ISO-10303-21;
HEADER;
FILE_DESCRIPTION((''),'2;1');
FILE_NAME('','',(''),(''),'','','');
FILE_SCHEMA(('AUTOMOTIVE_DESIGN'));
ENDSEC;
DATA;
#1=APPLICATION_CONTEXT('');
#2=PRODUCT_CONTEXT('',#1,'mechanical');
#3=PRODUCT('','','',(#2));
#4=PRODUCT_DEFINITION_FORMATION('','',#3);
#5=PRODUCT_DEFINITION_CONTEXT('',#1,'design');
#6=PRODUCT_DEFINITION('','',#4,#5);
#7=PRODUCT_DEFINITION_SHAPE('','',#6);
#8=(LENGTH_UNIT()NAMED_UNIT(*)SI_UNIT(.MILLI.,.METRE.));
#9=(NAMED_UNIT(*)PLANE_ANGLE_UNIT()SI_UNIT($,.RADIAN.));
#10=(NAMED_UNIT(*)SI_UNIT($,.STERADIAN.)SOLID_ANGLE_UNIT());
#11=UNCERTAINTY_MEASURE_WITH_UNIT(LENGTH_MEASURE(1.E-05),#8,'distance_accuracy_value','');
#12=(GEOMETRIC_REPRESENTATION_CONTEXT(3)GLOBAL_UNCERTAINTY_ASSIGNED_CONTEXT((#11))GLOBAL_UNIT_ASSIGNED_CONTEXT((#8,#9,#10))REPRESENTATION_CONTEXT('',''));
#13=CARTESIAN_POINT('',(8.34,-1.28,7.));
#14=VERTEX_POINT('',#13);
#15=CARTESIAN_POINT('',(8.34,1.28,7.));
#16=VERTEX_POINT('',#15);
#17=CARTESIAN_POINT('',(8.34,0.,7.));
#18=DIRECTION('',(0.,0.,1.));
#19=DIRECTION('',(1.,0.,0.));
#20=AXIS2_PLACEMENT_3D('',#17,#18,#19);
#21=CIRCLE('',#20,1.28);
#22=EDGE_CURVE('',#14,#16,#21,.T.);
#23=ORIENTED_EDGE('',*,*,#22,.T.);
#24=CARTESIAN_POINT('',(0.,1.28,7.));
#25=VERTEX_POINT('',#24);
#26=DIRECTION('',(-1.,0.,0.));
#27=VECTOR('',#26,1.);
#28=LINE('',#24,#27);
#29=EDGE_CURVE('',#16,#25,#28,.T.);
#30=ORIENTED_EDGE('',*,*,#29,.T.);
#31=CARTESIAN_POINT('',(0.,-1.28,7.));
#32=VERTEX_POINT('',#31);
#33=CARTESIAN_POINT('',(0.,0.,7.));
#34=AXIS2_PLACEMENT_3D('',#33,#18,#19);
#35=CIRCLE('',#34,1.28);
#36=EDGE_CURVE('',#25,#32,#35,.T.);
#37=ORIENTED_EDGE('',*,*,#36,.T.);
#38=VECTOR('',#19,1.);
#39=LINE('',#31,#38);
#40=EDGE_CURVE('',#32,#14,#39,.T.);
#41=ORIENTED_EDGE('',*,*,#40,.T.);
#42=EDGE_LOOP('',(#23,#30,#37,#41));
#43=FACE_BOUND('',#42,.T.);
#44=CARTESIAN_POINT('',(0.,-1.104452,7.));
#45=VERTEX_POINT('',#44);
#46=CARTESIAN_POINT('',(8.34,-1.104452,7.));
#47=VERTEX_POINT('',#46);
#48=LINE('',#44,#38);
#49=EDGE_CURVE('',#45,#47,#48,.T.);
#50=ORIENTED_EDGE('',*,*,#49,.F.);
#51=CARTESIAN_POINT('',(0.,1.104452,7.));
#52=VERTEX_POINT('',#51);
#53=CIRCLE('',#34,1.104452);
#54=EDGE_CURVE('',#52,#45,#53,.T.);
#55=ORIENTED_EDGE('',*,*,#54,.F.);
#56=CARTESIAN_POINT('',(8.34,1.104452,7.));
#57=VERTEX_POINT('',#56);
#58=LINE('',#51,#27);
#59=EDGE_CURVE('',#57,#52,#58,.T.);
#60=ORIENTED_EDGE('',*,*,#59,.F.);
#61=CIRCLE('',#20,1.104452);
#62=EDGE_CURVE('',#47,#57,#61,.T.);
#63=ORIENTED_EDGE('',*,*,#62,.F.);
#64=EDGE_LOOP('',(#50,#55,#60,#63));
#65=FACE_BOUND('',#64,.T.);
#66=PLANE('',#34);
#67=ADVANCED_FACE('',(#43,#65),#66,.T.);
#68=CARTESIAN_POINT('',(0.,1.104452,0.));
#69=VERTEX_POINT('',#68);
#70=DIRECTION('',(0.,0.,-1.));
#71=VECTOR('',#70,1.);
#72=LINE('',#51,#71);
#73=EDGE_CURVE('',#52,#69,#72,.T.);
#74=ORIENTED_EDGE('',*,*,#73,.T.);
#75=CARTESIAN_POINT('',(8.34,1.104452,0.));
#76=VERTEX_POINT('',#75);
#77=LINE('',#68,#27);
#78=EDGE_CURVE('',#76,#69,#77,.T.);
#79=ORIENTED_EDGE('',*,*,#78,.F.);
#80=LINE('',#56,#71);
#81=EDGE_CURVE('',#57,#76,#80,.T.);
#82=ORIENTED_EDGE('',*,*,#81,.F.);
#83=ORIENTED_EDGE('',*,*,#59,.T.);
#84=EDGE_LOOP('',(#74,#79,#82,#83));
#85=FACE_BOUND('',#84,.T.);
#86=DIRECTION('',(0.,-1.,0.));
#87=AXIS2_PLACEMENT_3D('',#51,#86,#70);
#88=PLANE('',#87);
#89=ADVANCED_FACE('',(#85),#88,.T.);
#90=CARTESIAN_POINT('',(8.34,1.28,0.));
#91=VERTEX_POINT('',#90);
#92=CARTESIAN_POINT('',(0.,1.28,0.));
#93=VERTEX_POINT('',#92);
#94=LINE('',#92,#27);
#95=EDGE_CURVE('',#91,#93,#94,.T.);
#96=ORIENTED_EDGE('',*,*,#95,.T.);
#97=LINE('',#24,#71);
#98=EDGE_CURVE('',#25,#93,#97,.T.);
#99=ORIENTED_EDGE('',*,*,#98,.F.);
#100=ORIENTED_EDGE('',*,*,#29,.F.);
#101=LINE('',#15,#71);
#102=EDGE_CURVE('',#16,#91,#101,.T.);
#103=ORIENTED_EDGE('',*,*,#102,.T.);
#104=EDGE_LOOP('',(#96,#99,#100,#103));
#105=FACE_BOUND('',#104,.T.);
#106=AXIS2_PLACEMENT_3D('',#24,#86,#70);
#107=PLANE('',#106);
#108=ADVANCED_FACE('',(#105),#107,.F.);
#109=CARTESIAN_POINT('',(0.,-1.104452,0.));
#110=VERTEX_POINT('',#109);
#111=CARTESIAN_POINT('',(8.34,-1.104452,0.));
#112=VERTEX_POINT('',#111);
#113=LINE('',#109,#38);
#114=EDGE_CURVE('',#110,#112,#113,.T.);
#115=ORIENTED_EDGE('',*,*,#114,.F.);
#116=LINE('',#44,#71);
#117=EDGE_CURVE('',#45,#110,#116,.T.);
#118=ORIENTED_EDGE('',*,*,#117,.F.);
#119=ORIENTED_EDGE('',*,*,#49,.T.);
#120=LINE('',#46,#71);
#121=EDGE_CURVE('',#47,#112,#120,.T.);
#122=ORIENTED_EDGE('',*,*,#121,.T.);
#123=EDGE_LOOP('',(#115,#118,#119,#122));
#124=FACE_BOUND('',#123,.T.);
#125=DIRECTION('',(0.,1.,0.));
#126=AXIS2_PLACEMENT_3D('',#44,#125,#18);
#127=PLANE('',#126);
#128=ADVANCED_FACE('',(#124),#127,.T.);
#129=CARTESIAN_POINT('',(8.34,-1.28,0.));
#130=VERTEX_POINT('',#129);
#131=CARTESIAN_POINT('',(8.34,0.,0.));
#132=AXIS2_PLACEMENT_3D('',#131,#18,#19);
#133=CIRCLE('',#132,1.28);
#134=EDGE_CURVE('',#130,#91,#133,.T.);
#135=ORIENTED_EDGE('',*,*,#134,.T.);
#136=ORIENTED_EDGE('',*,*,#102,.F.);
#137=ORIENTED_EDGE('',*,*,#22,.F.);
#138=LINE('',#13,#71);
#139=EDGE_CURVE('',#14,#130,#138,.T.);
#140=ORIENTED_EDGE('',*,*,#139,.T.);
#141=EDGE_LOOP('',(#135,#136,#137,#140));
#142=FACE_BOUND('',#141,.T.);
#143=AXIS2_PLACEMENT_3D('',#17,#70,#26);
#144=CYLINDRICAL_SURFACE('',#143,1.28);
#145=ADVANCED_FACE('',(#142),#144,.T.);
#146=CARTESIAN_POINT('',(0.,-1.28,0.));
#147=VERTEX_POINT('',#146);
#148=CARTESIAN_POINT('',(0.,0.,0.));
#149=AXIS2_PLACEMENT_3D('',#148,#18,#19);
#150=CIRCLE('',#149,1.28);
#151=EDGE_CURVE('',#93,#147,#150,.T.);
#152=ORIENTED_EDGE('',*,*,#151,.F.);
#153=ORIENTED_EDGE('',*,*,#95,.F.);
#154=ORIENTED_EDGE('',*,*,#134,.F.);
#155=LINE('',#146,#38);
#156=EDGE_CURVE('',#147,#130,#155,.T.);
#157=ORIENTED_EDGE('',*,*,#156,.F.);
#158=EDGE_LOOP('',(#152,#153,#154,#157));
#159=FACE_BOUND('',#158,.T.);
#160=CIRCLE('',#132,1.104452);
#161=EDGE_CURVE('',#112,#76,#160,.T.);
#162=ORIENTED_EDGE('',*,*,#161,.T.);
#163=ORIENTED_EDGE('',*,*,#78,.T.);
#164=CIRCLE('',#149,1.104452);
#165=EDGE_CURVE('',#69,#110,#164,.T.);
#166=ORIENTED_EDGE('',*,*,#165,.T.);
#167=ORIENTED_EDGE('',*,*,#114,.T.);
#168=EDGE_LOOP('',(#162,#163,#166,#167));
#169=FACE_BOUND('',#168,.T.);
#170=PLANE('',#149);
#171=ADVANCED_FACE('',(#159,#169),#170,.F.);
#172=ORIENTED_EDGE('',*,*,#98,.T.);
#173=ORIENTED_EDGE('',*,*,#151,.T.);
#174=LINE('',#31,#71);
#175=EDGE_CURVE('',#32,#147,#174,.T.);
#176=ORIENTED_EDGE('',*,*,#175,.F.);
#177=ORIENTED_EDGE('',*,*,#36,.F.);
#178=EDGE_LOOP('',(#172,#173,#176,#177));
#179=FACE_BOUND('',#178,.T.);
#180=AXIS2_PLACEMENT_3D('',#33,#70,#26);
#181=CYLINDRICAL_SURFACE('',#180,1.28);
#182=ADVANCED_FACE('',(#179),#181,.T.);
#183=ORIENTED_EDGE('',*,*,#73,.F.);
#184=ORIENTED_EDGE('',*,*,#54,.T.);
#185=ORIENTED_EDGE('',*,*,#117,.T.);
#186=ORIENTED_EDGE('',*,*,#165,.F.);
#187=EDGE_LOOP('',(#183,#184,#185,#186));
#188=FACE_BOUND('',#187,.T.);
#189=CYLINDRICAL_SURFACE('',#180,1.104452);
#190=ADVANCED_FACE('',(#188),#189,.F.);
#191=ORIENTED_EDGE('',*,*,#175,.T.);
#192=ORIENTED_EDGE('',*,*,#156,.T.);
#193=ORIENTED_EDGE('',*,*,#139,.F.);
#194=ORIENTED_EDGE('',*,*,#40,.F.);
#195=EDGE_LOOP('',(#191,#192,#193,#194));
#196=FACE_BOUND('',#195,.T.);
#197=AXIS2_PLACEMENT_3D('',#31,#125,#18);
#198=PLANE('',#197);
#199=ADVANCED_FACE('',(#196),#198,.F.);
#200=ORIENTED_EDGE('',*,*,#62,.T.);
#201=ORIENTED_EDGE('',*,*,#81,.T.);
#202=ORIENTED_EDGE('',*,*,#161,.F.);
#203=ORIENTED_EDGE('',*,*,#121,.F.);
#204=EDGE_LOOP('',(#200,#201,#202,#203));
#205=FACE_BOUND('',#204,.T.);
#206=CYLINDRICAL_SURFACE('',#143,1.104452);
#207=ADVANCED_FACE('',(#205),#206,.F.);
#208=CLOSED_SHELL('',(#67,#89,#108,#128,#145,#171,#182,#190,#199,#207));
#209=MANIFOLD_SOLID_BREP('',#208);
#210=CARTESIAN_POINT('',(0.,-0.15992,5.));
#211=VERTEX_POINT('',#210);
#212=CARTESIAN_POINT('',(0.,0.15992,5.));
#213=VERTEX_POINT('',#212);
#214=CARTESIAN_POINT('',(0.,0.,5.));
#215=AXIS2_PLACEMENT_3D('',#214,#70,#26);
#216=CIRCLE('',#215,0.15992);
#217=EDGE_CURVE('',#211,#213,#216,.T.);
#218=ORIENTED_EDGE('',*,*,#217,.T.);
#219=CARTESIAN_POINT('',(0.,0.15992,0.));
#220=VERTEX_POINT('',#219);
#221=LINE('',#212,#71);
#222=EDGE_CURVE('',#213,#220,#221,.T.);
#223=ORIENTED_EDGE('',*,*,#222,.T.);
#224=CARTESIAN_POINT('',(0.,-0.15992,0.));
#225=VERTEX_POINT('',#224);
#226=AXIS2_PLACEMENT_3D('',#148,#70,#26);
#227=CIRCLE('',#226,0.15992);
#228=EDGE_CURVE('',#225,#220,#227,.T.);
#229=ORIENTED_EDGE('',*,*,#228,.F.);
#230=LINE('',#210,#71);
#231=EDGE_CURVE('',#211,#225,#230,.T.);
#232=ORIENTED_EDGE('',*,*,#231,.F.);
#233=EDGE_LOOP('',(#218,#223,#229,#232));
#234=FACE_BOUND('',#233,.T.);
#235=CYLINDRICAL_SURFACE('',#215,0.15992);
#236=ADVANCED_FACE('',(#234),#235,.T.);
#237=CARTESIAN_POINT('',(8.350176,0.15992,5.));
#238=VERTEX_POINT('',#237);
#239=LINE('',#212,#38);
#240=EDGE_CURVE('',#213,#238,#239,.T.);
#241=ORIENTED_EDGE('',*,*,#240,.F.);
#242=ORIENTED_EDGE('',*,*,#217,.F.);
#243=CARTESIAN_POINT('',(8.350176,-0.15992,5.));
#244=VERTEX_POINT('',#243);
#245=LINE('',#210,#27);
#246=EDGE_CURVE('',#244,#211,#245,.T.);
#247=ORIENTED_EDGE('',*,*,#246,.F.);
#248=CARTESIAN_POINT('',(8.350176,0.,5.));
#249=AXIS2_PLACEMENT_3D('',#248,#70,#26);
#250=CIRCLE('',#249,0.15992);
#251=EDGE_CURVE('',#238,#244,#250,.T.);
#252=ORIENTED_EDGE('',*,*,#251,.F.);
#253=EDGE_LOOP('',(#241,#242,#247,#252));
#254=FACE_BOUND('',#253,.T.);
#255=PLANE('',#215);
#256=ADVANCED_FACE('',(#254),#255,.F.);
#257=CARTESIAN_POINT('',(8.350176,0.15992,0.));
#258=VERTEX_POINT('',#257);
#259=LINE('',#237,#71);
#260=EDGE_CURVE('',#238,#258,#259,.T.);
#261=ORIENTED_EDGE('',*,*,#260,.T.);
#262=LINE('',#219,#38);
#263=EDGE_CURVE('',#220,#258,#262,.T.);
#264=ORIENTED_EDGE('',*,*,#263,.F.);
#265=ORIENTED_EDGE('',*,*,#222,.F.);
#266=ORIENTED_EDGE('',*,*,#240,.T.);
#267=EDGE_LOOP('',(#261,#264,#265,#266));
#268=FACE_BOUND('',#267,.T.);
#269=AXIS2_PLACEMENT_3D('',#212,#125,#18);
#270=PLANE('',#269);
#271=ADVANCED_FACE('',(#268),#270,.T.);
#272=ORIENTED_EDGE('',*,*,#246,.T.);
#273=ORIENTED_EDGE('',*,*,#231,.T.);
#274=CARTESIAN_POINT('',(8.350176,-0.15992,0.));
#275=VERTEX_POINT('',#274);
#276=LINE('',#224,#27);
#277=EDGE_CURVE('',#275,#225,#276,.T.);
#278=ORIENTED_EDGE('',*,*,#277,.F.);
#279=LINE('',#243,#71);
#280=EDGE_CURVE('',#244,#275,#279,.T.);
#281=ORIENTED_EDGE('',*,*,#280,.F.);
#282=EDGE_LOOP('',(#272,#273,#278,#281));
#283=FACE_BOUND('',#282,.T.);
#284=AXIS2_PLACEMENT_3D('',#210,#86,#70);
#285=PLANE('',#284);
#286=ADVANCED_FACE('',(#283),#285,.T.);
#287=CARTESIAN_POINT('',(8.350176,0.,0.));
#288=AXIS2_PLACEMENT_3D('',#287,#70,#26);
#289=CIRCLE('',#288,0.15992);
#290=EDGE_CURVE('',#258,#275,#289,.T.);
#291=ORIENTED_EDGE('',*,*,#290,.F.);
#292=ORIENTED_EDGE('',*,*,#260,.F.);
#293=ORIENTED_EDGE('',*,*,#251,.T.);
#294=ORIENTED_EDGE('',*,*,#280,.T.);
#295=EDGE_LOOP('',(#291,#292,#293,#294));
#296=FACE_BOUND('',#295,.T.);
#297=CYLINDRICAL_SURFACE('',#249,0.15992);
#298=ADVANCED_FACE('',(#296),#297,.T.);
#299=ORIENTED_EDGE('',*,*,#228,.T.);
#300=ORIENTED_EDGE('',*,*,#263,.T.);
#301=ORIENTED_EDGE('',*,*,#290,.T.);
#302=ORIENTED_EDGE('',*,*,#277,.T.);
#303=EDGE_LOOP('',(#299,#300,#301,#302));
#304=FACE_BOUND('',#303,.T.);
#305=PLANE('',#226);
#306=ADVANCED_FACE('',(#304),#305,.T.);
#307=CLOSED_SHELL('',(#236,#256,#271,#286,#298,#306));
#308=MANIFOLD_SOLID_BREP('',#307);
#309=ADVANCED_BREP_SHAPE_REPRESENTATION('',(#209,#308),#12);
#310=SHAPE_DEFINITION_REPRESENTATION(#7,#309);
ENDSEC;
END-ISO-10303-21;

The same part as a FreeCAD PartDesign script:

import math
import FreeCAD as App
import Part
import Sketcher
Q = App.Units.Quantity

doc = App.newDocument("Part")
body = doc.addObject("PartDesign::Body", "Body")

sketch1 = body.newObject("Sketcher::SketchObject", "Sketch")
sketch1.AttachmentSupport = (doc.getObject("XY_Plane"), [""])
sketch1.MapMode = "FlatFace"
sketch1.addGeometry([
    Part.LineSegment(App.Vector(8.3, 1.3, 0), App.Vector(0, 1.3, 0)),
    Part.ArcOfCircle(Part.Circle(App.Vector(0, 0, 0), App.Vector(0, 0, 1), 1.3), math.radians(90), math.radians(270)),
    Part.LineSegment(App.Vector(0, -1.3, 0), App.Vector(8.3, -1.3, 0)),
    Part.ArcOfCircle(Part.Circle(App.Vector(8.3, 0, 0), App.Vector(0, 0, 1), 1.3), math.radians(-90), math.radians(90)),
    Part.LineSegment(App.Vector(0, 1.1, 0), App.Vector(8.3, 1.1, 0)),
    Part.ArcOfCircle(Part.Circle(App.Vector(8.3, 0, 0), App.Vector(0, 0, 1), 1.1), math.radians(-90), math.radians(90)),
    Part.LineSegment(App.Vector(8.3, -1.1, 0), App.Vector(0, -1.1, 0)),
    Part.ArcOfCircle(Part.Circle(App.Vector(0, 0, 0), App.Vector(0, 0, 1), 1.1), math.radians(90), math.radians(270)),
], False)
sketch1.addConstraint([
    Sketcher.Constraint("Tangent", 0, 2, 1, 1),
    Sketcher.Constraint("Tangent", 1, 2, 2, 1),
    Sketcher.Constraint("Tangent", 2, 2, 3, 1),
    Sketcher.Constraint("Tangent", 3, 2, 0, 1),
    Sketcher.Constraint("Tangent", 4, 2, 5, 2),
    Sketcher.Constraint("Tangent", 5, 1, 6, 1),
    Sketcher.Constraint("Tangent", 6, 2, 7, 2),
    Sketcher.Constraint("Tangent", 7, 1, 4, 1),
    Sketcher.Constraint("Horizontal", 0),
    Sketcher.Constraint("Horizontal", 2),
    Sketcher.Constraint("Horizontal", 4),
    Sketcher.Constraint("Horizontal", 6),
    Sketcher.Constraint("Coincident", 1, 3, -1, 1),
    Sketcher.Constraint("Coincident", 7, 3, -1, 1),
    Sketcher.Constraint("Vertical", 5, 3, 2, 2),
    Sketcher.Constraint("Radius", 1, Q("1.28 mm")),
    Sketcher.Constraint("DistanceX", 0, 2, 0, 1, Q("8.34 mm")),
    Sketcher.Constraint("Radius", 5, Q("1.104452 mm")),
])
pad1 = body.newObject("PartDesign::Pad", "Pad")
pad1.Profile = sketch1
pad1.Length = 7
body2 = doc.addObject("PartDesign::Body", "Body001")

sketch2 = body2.newObject("Sketcher::SketchObject", "Sketch001")
sketch2.AttachmentSupport = (doc.getObject("XY_Plane001"), [""])
sketch2.MapMode = "FlatFace"
sketch2.addGeometry([
    Part.LineSegment(App.Vector(8.35, -0.16, 0), App.Vector(0, -0.16, 0)),
    Part.ArcOfCircle(Part.Circle(App.Vector(0, 0, 0), App.Vector(0, 0, 1), 0.16), math.radians(90), math.radians(270)),
    Part.LineSegment(App.Vector(0, 0.16, 0), App.Vector(8.35, 0.16, 0)),
    Part.ArcOfCircle(Part.Circle(App.Vector(8.35, 0, 0), App.Vector(0, 0, 1), 0.16), math.radians(-90), math.radians(90)),
], False)
sketch2.addConstraint([
    Sketcher.Constraint("Tangent", 0, 2, 1, 2),
    Sketcher.Constraint("Tangent", 1, 1, 2, 1),
    Sketcher.Constraint("Tangent", 2, 2, 3, 2),
    Sketcher.Constraint("Tangent", 3, 1, 0, 1),
    Sketcher.Constraint("Horizontal", 0),
    Sketcher.Constraint("Horizontal", 2),
    Sketcher.Constraint("Coincident", 1, 3, -1, 1),
    Sketcher.Constraint("Radius", 1, Q("0.15992 mm")),
    Sketcher.Constraint("DistanceX", 0, 2, 0, 1, Q("8.350176 mm")),
])
pad2 = body2.newObject("PartDesign::Pad", "Pad001")
pad2.Profile = sketch2
pad2.Length = 5

doc.recompute()
